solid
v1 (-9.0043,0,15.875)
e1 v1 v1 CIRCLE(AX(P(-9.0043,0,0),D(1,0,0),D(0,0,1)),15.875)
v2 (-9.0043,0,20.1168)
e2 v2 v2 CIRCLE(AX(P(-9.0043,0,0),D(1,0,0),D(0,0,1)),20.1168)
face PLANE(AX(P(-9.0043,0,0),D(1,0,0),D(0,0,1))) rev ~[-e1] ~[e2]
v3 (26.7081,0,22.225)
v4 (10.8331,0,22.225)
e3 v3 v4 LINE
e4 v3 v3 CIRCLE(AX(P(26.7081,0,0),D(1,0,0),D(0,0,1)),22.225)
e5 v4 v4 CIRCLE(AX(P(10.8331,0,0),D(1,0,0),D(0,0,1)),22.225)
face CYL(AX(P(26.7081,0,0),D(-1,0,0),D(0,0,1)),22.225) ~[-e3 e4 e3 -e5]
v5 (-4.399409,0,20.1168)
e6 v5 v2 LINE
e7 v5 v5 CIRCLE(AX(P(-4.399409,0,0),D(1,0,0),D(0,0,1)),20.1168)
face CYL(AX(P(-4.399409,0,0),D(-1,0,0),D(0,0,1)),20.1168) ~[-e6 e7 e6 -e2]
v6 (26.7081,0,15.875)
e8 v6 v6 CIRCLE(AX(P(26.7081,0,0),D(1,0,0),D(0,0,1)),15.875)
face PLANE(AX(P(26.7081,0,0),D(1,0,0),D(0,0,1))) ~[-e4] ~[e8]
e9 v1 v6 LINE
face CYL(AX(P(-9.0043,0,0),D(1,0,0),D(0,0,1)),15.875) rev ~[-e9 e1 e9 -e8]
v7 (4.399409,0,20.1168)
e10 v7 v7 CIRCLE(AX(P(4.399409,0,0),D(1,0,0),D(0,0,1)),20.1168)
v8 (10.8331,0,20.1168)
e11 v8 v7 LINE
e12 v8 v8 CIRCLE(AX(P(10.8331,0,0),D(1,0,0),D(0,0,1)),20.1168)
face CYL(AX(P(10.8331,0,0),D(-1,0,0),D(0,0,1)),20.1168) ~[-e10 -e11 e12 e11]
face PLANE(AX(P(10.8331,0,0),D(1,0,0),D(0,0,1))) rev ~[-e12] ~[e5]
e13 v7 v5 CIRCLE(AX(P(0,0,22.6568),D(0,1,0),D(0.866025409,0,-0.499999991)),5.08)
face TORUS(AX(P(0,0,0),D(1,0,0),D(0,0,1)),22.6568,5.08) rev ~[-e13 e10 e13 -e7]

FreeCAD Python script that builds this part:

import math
import FreeCAD as App
import Part
import Sketcher
from FreeCAD import Vector
Q = App.Units.Quantity

doc = App.newDocument("Part")
body = doc.addObject("PartDesign::Body", "Body")

# Sketch on XZ plane
sketch1 = body.newObject("Sketcher::SketchObject", "Sketch")
sketch1.AttachmentSupport = (doc.getObject("XZ_Plane"), [""])
sketch1.MapMode = "FlatFace"
sketch1.addGeometry([
    Part.LineSegment(Vector(10.8, 22.2, 0), Vector(10.8, 20.1, 0)),  # 0
    Part.LineSegment(Vector(10.8, 20.1, 0), Vector(4.4, 20.1, 0)),  # 1
    Part.ArcOfCircle(Part.Circle(Vector(0, 22.7, 0), Vector(0, 0, 1), 5.1), math.radians(-150), math.radians(-30)),  # 2
    Part.LineSegment(Vector(-4.4, 20.1, 0), Vector(-9, 20.1, 0)),  # 3
    Part.LineSegment(Vector(-9, 20.1, 0), Vector(-9, 15.9, 0)),  # 4
    Part.LineSegment(Vector(-9, 15.9, 0), Vector(26.7, 15.9, 0)),  # 5
    Part.LineSegment(Vector(26.7, 15.9, 0), Vector(26.7, 22.2, 0)),  # 6
    Part.LineSegment(Vector(26.7, 22.2, 0), Vector(10.8, 22.2, 0)),  # 7
], False)
sketch1.addConstraint([
    Sketcher.Constraint("Coincident", 0, 2, 1, 1),
    Sketcher.Constraint("Coincident", 1, 2, 2, 2),
    Sketcher.Constraint("Coincident", 2, 1, 3, 1),
    Sketcher.Constraint("Coincident", 3, 2, 4, 1),
    Sketcher.Constraint("Coincident", 4, 2, 5, 1),
    Sketcher.Constraint("Coincident", 5, 2, 6, 1),
    Sketcher.Constraint("Coincident", 6, 2, 7, 1),
    Sketcher.Constraint("Coincident", 7, 2, 0, 1),
    Sketcher.Constraint("Vertical", 0),
    Sketcher.Constraint("Horizontal", 1),
    Sketcher.Constraint("Horizontal", 3),
    Sketcher.Constraint("Vertical", 4),
    Sketcher.Constraint("Horizontal", 5),
    Sketcher.Constraint("Vertical", 6),
    Sketcher.Constraint("Horizontal", 7),
    Sketcher.Constraint("Symmetric", 1, 2, 2, 1, -2),
    Sketcher.Constraint("Radius", 2, Q("0.2 in")),
    Sketcher.Constraint("DistanceY", 6, 1, 6, 2, Q("0.25 in")),
    Sketcher.Constraint("DistanceY", 0, 2, 2, 3, Q("0.1 in")),
    Sketcher.Constraint("DistanceX", 5, 1, 5, 2, Q("1.406 in")),
    Sketcher.Constraint("DistanceX", 7, 2, 7, 1, Q("0.625 in")),
    Sketcher.Constraint("DistanceY", 0, 2, 0, 1, Q("0.083 in")),
    Sketcher.Constraint("DistanceY", -1, 1, 2, 3, Q("0.892 in")),
    Sketcher.Constraint("DistanceX", -1, 1, 0, 2, Q("0.4265 in")),
])
revolution = body.newObject("PartDesign::Revolution", "Revolution")
revolution.Profile = sketch1
revolution.ReferenceAxis = (sketch1, ["H_Axis"])
revolution.Angle = 360

doc.recompute()
